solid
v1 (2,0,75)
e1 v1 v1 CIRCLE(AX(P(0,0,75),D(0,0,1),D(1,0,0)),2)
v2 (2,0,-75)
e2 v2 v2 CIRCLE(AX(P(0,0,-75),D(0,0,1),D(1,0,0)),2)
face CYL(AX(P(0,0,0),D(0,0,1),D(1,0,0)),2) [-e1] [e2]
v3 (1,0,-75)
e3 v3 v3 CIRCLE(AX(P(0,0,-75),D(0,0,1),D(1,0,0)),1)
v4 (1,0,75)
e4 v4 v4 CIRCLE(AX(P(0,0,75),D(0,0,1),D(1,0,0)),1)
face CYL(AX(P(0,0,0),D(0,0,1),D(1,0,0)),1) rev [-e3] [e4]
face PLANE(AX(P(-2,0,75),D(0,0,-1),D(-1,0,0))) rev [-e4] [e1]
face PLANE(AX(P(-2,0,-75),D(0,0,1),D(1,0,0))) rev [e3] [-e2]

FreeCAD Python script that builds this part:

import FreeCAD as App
import Part
import Sketcher


def add_polygon(sketch, points):
    """Adds a closed chain of lines whose ends are joined by coincident constraints."""
    first, n = sketch.GeometryCount, len(points)
    for a, b in zip(points, points[1:] + points[:1]):
        sketch.addGeometry(Part.LineSegment(App.Vector(*a, 0), App.Vector(*b, 0)), False)
    for i in range(n):
        sketch.addConstraint(Sketcher.Constraint("Coincident", first + i, 2, first + (i + 1) % n, 1))

doc = App.newDocument("Part")
params = doc.addObject("Spreadsheet::Sheet", "Params")
for row, (alias, value) in enumerate([
    ("sketch1_width", "1 mm"),
    ("sketch1_height", "150 mm"),
    ("revolution_angle", "360 deg"),
], start=1):
    params.set(f"A{row}", alias)
    params.set(f"B{row}", "=" + value)
    params.setAlias(f"B{row}", alias)

body = doc.addObject("PartDesign::Body", "Body")

sketch1 = doc.addObject("Sketcher::SketchObject", "Sketch")
body.addObject(sketch1)
sketch1.AttachmentSupport = (doc.XZ_Plane, [""])
sketch1.MapMode = "FlatFace"
add_polygon(sketch1, [(-2, -75), (-2, 75), (-1, 75), (-1, -75)])
sketch1.addConstraint([
    Sketcher.Constraint("Vertical", 0),
    Sketcher.Constraint("Horizontal", 1),
    Sketcher.Constraint("Vertical", 2),
    Sketcher.Constraint("Horizontal", 3),
    Sketcher.Constraint("DistanceX", 1, 1, 1, 2, 1.0),
    Sketcher.Constraint("DistanceY", 0, 1, 0, 2, 150.0),
    Sketcher.Constraint("DistanceX", 0, 2, -1, 1, 2.0),
    Sketcher.Constraint("DistanceY", -1, 1, 0, 2, 75.0),
])
sketch1.setExpression("Constraints[8]", "Params.sketch1_width")
sketch1.setExpression("Constraints[9]", "Params.sketch1_height")
revolution = doc.addObject("PartDesign::Revolution", "Revolution")
body.addObject(revolution)
revolution.Profile = sketch1
revolution.ReferenceAxis = (sketch1, ["V_Axis"])
revolution.setExpression("Angle", "Params.revolution_angle")

doc.recompute()
